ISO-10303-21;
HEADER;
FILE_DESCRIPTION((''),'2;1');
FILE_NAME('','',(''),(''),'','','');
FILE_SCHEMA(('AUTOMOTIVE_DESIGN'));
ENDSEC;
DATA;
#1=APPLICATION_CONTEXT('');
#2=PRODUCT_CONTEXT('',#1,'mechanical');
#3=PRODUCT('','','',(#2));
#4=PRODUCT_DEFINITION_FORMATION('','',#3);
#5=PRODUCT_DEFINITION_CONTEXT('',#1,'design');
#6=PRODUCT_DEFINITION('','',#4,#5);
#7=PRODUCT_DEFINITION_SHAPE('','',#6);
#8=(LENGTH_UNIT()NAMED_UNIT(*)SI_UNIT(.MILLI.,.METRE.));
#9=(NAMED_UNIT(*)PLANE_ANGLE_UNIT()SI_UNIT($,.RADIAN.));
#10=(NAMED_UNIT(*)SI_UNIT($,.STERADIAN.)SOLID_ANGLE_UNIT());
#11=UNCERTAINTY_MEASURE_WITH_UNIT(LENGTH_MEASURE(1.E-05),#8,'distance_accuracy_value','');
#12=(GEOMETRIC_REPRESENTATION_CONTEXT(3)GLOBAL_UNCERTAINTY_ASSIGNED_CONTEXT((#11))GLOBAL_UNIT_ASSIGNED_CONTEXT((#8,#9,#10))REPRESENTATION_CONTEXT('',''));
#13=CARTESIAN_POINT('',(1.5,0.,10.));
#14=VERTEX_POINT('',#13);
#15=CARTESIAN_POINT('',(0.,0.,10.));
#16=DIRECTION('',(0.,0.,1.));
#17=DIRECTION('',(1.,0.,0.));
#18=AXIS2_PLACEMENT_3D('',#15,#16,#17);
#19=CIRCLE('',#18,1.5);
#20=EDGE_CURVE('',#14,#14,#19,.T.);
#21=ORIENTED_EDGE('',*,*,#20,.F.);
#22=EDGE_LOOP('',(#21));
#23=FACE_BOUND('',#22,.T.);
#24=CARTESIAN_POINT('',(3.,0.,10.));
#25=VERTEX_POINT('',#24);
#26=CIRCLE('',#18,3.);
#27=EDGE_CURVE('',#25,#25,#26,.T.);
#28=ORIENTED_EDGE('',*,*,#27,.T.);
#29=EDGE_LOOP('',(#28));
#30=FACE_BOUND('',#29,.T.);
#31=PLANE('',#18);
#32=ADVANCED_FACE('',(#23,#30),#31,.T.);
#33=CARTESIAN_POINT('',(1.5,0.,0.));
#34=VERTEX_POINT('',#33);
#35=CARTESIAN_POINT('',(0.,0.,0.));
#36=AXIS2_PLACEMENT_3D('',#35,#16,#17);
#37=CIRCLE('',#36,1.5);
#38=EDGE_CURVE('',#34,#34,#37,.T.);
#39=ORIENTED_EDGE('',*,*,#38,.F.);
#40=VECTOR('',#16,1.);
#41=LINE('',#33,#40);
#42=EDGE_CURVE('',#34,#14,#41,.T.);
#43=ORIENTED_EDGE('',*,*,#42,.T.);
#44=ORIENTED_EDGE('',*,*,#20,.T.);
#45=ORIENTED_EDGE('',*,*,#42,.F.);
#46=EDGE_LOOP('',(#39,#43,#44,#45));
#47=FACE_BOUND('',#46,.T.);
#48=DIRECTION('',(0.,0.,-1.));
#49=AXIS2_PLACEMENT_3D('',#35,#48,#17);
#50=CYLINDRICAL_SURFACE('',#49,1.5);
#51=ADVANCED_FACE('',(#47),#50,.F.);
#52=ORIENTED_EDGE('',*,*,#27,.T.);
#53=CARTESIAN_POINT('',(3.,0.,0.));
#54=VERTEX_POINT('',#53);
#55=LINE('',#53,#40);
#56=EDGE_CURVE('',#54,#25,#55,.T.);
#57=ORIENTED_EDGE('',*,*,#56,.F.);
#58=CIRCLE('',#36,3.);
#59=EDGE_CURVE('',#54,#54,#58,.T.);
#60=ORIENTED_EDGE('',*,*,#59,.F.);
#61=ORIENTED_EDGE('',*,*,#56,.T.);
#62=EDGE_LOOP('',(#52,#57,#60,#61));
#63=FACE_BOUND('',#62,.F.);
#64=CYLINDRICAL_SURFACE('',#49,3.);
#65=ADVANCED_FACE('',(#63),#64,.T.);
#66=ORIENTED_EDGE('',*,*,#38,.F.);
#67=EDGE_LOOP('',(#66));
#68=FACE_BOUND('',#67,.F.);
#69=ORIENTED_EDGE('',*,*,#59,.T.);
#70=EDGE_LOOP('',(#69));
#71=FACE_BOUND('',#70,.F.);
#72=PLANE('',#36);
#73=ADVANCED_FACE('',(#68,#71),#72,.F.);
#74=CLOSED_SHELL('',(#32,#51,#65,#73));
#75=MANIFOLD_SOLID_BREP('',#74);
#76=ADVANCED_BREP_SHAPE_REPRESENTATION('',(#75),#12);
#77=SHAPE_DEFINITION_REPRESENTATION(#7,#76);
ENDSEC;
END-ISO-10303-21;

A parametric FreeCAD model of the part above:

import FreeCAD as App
import Part
import Sketcher
Q = App.Units.Quantity

doc = App.newDocument("Part")
params = doc.addObject("Spreadsheet::Sheet", "Params")
for row, (alias, value) in enumerate([
    ("sketch1_diameter", "6 mm"),
    ("sketch1_diameter2", "3 mm"),
    ("pad1_length", "10 mm"),
], start=1):
    params.set(f"A{row}", alias)
    params.set(f"B{row}", "=" + value)
    params.setAlias(f"B{row}", alias)

body = doc.addObject("PartDesign::Body", "Body")

sketch1 = doc.addObject("Sketcher::SketchObject", "Sketch")
body.addObject(sketch1)
sketch1.AttachmentSupport = (doc.XY_Plane, [""])
sketch1.MapMode = "FlatFace"
sketch1.addGeometry(Part.Circle(App.Vector(0, 0, 0), App.Vector(0, 0, 1), 3), False)
sketch1.addGeometry(Part.Circle(App.Vector(0, 0, 0), App.Vector(0, 0, 1), 1.5), False)
sketch1.addConstraint(Sketcher.Constraint("Coincident", 0, 3, -1, 1))
sketch1.addConstraint(Sketcher.Constraint("Coincident", 1, 3, -1, 1))
sketch1.addConstraint(Sketcher.Constraint("Diameter", 0, Q("6 mm")))
sketch1.addConstraint(Sketcher.Constraint("Diameter", 1, Q("3 mm")))
sketch1.setExpression("Constraints[2]", "Params.sketch1_diameter")
sketch1.setExpression("Constraints[3]", "Params.sketch1_diameter2")
pad1 = doc.addObject("PartDesign::Pad", "Pad")
body.addObject(pad1)
pad1.Profile = sketch1
pad1.setExpression("Length", "Params.pad1_length")

doc.recompute()
